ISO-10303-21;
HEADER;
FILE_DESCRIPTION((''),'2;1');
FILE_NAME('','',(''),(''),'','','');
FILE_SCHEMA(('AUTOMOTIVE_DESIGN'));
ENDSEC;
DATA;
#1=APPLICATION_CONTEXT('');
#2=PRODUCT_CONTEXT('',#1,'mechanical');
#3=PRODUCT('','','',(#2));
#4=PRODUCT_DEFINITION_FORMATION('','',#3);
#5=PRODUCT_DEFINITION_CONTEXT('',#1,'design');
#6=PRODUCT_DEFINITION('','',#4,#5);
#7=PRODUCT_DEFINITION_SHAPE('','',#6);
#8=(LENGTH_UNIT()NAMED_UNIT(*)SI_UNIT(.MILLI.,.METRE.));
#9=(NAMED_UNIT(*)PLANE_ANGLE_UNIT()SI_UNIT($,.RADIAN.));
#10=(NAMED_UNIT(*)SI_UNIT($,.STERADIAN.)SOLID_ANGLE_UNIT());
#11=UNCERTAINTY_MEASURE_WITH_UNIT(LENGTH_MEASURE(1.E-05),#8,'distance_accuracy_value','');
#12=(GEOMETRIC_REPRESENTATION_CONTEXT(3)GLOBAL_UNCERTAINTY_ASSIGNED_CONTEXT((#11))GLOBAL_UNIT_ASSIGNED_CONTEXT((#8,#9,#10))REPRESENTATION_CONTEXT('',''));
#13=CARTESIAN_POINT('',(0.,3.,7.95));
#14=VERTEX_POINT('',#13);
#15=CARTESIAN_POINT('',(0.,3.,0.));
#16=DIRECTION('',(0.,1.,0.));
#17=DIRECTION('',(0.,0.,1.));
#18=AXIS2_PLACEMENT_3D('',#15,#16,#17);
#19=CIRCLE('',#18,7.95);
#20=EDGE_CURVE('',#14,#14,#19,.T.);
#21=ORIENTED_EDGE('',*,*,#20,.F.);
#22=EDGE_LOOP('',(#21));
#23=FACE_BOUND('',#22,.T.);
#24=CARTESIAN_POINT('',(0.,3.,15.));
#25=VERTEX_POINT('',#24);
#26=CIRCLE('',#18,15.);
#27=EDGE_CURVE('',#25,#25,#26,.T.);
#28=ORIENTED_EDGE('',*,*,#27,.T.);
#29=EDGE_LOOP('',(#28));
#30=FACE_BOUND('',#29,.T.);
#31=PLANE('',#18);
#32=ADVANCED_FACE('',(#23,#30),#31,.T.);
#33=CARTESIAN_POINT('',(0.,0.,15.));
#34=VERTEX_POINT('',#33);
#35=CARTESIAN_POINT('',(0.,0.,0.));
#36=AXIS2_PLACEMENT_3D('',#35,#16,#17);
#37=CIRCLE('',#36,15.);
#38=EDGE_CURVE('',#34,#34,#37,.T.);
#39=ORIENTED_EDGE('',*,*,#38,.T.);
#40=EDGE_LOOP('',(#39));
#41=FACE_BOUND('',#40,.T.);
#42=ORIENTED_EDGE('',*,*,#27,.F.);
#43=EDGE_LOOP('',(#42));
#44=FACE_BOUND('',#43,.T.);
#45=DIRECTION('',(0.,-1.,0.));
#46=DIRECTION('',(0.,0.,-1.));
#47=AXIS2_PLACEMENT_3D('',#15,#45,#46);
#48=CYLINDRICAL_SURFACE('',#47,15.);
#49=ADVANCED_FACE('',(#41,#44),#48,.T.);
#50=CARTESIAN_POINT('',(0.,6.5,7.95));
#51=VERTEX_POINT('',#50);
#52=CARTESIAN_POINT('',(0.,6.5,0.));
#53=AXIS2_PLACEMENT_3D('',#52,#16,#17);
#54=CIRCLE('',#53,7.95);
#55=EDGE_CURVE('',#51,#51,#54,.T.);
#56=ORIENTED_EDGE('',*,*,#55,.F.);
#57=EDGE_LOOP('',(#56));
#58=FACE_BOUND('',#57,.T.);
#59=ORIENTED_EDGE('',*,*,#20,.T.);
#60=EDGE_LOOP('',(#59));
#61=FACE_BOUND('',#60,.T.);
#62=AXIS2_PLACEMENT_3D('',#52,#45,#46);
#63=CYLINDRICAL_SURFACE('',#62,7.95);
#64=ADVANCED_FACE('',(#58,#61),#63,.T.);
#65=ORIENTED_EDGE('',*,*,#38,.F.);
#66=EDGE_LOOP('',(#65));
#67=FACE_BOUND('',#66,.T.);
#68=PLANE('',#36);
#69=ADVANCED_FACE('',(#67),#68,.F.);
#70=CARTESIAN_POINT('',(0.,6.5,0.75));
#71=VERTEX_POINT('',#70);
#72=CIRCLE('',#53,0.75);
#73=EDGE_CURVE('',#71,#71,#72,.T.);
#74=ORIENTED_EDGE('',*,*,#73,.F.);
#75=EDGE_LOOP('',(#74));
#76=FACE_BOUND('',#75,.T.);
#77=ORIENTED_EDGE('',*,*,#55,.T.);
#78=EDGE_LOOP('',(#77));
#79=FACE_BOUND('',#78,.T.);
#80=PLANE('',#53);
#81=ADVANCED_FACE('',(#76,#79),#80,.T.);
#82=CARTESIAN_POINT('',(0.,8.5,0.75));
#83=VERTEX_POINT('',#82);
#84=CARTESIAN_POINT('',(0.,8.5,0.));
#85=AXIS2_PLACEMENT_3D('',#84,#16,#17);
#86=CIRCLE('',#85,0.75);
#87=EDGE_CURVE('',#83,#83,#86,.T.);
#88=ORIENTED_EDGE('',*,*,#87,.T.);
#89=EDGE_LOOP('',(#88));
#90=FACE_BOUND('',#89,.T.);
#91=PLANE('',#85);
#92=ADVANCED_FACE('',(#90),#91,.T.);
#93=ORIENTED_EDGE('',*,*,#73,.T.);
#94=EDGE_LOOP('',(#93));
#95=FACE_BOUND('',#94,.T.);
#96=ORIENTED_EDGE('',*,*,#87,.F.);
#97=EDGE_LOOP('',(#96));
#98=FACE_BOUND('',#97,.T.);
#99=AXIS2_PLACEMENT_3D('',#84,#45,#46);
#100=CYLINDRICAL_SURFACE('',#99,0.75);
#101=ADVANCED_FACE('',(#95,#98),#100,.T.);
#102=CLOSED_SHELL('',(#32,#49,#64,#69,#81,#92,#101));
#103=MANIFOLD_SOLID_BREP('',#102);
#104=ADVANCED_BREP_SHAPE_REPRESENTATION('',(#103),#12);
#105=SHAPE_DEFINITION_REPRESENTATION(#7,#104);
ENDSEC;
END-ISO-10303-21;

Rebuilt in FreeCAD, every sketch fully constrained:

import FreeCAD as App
import Part
import Sketcher

doc = App.newDocument("Part")
params = doc.addObject("Spreadsheet::Sheet", "Params")
for row, (alias, value) in enumerate([
    ("sketch1_diameter", "30 mm"),
    ("pad1_length", "3 mm"),
    ("sketch2_diameter", "15.9 mm"),
    ("pad2_length", "3.5 mm"),
    ("sketch3_diameter", "1.5 mm"),
    ("pad3_length", "2 mm"),
], start=1):
    params.set(f"A{row}", alias)
    params.set(f"B{row}", "=" + value)
    params.setAlias(f"B{row}", alias)

body = doc.addObject("PartDesign::Body", "Body")

sketch1 = doc.addObject("Sketcher::SketchObject", "Sketch")
body.addObject(sketch1)
sketch1.AttachmentSupport = (doc.XZ_Plane, [""])
sketch1.MapMode = "FlatFace"
sketch1.addGeometry(Part.Circle(App.Vector(0, 0, 0), App.Vector(0, 0, 1), 15), False)
sketch1.addConstraint(Sketcher.Constraint("Coincident", 0, 3, -1, 1))
sketch1.addConstraint(Sketcher.Constraint("Diameter", 0, 30.0))
sketch1.setExpression("Constraints[1]", "Params.sketch1_diameter")
pad1 = doc.addObject("PartDesign::Pad", "Pad")
body.addObject(pad1)
pad1.Profile = sketch1
pad1.setExpression("Length", "Params.pad1_length")
pad1.Reversed = True

sketch2 = doc.addObject("Sketcher::SketchObject", "Sketch001")
body.addObject(sketch2)
sketch2.AttachmentSupport = (doc.XZ_Plane, [""])
sketch2.MapMode = "FlatFace"
sketch2.AttachmentOffset = App.Placement(App.Vector(0, 0, -3), App.Rotation())
sketch2.addGeometry(Part.Circle(App.Vector(0, 0, 0), App.Vector(0, 0, 1), 7.95), False)
sketch2.addConstraint(Sketcher.Constraint("Coincident", 0, 3, -1, 1))
sketch2.addConstraint(Sketcher.Constraint("Diameter", 0, 15.9))
sketch2.setExpression("Constraints[1]", "Params.sketch2_diameter")
pad2 = doc.addObject("PartDesign::Pad", "Pad001")
body.addObject(pad2)
pad2.Profile = sketch2
pad2.setExpression("Length", "Params.pad2_length")
pad2.Reversed = True

sketch3 = doc.addObject("Sketcher::SketchObject", "Sketch002")
body.addObject(sketch3)
sketch3.AttachmentSupport = (doc.XZ_Plane, [""])
sketch3.MapMode = "FlatFace"
sketch3.AttachmentOffset = App.Placement(App.Vector(0, 0, -6.5), App.Rotation())
sketch3.addGeometry(Part.Circle(App.Vector(0, 0, 0), App.Vector(0, 0, 1), 0.75), False)
sketch3.addConstraint(Sketcher.Constraint("Coincident", 0, 3, -1, 1))
sketch3.addConstraint(Sketcher.Constraint("Diameter", 0, 1.5))
sketch3.setExpression("Constraints[1]", "Params.sketch3_diameter")
pad3 = doc.addObject("PartDesign::Pad", "Pad002")
body.addObject(pad3)
pad3.Profile = sketch3
pad3.setExpression("Length", "Params.pad3_length")
pad3.Reversed = True

doc.recompute()
